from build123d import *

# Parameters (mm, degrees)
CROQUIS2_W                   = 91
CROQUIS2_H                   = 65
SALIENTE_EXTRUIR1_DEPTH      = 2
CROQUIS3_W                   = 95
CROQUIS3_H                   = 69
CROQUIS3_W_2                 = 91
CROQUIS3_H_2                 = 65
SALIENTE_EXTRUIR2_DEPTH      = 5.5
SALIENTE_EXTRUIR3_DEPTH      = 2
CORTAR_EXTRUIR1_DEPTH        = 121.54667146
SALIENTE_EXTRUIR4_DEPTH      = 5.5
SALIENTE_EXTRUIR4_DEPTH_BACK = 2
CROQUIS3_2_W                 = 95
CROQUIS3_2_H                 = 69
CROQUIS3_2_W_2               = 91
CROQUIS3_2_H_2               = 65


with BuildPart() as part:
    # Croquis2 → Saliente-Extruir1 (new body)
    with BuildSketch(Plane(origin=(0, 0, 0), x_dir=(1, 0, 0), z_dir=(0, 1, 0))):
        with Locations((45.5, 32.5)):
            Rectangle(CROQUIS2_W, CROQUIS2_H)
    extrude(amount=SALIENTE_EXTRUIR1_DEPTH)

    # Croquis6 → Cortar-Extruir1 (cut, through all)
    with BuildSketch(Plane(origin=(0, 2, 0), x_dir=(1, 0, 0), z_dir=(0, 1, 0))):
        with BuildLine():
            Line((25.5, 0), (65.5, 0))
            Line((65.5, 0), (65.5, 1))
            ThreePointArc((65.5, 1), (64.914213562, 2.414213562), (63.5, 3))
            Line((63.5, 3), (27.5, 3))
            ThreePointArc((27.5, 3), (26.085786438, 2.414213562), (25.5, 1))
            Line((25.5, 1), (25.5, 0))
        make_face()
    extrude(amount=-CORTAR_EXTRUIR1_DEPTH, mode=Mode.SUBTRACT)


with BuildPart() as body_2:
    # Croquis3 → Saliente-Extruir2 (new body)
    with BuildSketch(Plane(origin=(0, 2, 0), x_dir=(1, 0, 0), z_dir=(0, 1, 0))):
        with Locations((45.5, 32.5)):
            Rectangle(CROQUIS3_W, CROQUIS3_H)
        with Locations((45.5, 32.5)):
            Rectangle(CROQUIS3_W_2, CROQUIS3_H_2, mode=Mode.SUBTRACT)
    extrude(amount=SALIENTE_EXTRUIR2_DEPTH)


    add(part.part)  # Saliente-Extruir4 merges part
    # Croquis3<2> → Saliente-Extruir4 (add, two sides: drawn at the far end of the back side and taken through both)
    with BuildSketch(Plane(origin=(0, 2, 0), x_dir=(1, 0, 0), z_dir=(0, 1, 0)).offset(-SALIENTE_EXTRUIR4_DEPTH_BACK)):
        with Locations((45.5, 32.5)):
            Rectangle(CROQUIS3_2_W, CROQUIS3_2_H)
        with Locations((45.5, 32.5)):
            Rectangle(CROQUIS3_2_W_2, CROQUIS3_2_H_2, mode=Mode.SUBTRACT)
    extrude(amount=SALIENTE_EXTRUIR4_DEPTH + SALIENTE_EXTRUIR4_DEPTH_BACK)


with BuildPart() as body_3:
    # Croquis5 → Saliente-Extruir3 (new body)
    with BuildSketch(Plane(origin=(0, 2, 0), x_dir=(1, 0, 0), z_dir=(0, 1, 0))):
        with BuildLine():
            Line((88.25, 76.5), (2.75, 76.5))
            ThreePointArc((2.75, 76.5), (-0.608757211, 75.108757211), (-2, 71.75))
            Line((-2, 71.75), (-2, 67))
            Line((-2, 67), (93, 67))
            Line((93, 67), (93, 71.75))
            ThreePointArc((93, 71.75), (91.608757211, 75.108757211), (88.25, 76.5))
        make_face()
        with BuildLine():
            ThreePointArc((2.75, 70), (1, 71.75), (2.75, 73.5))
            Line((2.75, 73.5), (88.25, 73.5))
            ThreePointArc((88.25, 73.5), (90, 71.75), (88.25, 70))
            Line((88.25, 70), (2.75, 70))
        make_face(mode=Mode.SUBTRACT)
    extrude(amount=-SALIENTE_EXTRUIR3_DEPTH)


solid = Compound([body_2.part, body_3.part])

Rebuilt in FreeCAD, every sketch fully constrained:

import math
import FreeCAD as App
import Part
import Sketcher

V = App.Vector
Q = App.Units.Quantity


def add_polygon(sketch, points):
    """Adds a closed chain of lines whose ends are joined by coincident constraints."""
    first, n = sketch.GeometryCount, len(points)
    for a, b in zip(points, points[1:] + points[:1]):
        sketch.addGeometry(Part.LineSegment(App.Vector(*a, 0), App.Vector(*b, 0)), False)
    for i in range(n):
        sketch.addConstraint(Sketcher.Constraint("Coincident", first + i, 2, first + (i + 1) % n, 1))

doc = App.newDocument("Part")
body = doc.addObject("PartDesign::Body", "Body")

# Sketch on XZ plane
sketch1 = body.newObject("Sketcher::SketchObject", "Sketch")
sketch1.AttachmentSupport = (doc.getObject("XZ_Plane"), [""])
sketch1.MapMode = "FlatFace"
add_polygon(sketch1, [(0, -65), (0, 0), (91, 0), (91, -65)])  # lines 0-3
sketch1.addConstraint(Sketcher.Constraint("Vertical", 0))
sketch1.addConstraint(Sketcher.Constraint("Horizontal", 1))
sketch1.addConstraint(Sketcher.Constraint("Vertical", 2))
sketch1.addConstraint(Sketcher.Constraint("Horizontal", 3))
sketch1.addConstraint(Sketcher.Constraint("Coincident", 0, 2, -1, 1))
sketch1.addConstraint(Sketcher.Constraint("DistanceX", 1, 1, 1, 2, Q("91 mm")))
sketch1.addConstraint(Sketcher.Constraint("DistanceY", 0, 1, 0, 2, Q("65 mm")))
pad1 = body.newObject("PartDesign::Pad", "Pad")
pad1.Profile = sketch1
pad1.Length = 2
pad1.Reversed = True

# Sketch on XZ plane
sketch2 = body.newObject("Sketcher::SketchObject", "Sketch001")
sketch2.AttachmentSupport = (doc.getObject("XZ_Plane"), [""])
sketch2.MapMode = "FlatFace"
sketch2.AttachmentOffset = App.Placement(V(0, 0, -2), App.Rotation())
sketch2.addGeometry(Part.LineSegment(V(25.5, 0, 0), V(65.5, 0, 0)), False)
sketch2.addGeometry(Part.LineSegment(V(65.5, 0, 0), V(65.5, -1, 0)), False)
sketch2.addGeometry(Part.ArcOfCircle(Part.Circle(V(63.5, -1, 0), V(0, 0, 1), 2), math.radians(-90), math.radians(0)), False)
sketch2.addGeometry(Part.LineSegment(V(63.5, -3, 0), V(27.5, -3, 0)), False)
sketch2.addGeometry(Part.ArcOfCircle(Part.Circle(V(27.5, -1, 0), V(0, 0, 1), 2), math.radians(-180), math.radians(-90)), False)
sketch2.addGeometry(Part.LineSegment(V(25.5, -1, 0), V(25.5, 0, 0)), False)
sketch2.addConstraint(Sketcher.Constraint("Coincident", 0, 2, 1, 1))
sketch2.addConstraint(Sketcher.Constraint("Tangent", 1, 2, 2, 2))
sketch2.addConstraint(Sketcher.Constraint("Tangent", 2, 1, 3, 1))
sketch2.addConstraint(Sketcher.Constraint("Tangent", 3, 2, 4, 2))
sketch2.addConstraint(Sketcher.Constraint("Tangent", 4, 1, 5, 1))
sketch2.addConstraint(Sketcher.Constraint("Coincident", 5, 2, 0, 1))
sketch2.addConstraint(Sketcher.Constraint("Horizontal", 0))
sketch2.addConstraint(Sketcher.Constraint("Vertical", 1))
sketch2.addConstraint(Sketcher.Constraint("Horizontal", 3))
sketch2.addConstraint(Sketcher.Constraint("Vertical", 5))
sketch2.addConstraint(Sketcher.Constraint("Equal", 2, 4))
sketch2.addConstraint(Sketcher.Constraint("PointOnObject", 0, 2, -1))
sketch2.addConstraint(Sketcher.Constraint("Radius", 2, Q("2 mm")))
sketch2.addConstraint(Sketcher.Constraint("DistanceX", 0, 1, 0, 2, Q("40 mm")))
sketch2.addConstraint(Sketcher.Constraint("DistanceY", 1, 2, 1, 1, Q("1 mm")))
sketch2.addConstraint(Sketcher.Constraint("DistanceX", -1, 1, 2, 3, Q("63.5 mm")))
pocket1 = body.newObject("PartDesign::Pocket", "Pocket")
pocket1.Profile = sketch2
pocket1.Type = "ThroughAll"
pocket1.Reversed = True
body2 = doc.addObject("PartDesign::Body", "Body001")
body2.AllowCompound = True

# Sketch on XZ plane
sketch3 = body2.newObject("Sketcher::SketchObject", "Sketch002")
sketch3.AttachmentSupport = (doc.getObject("XZ_Plane001"), [""])
sketch3.MapMode = "FlatFace"
sketch3.AttachmentOffset = App.Placement(V(0, 0, -2), App.Rotation())
add_polygon(sketch3, [(-2, -67), (-2, 2), (93, 2), (93, -67)])  # lines 0-3
add_polygon(sketch3, [(91, 0), (0, 0), (0, -65), (91, -65)])  # lines 4-7
sketch3.addConstraint(Sketcher.Constraint("Vertical", 0))
sketch3.addConstraint(Sketcher.Constraint("Horizontal", 1))
sketch3.addConstraint(Sketcher.Constraint("Vertical", 2))
sketch3.addConstraint(Sketcher.Constraint("Horizontal", 3))
sketch3.addConstraint(Sketcher.Constraint("Horizontal", 4))
sketch3.addConstraint(Sketcher.Constraint("Vertical", 5))
sketch3.addConstraint(Sketcher.Constraint("Horizontal", 6))
sketch3.addConstraint(Sketcher.Constraint("Vertical", 7))
sketch3.addConstraint(Sketcher.Constraint("Coincident", 4, 2, -1, 1))
sketch3.addConstraint(Sketcher.Constraint("DistanceX", 1, 1, 1, 2, Q("95 mm")))
sketch3.addConstraint(Sketcher.Constraint("DistanceX", 4, 2, 4, 1, Q("91 mm")))
sketch3.addConstraint(Sketcher.Constraint("DistanceY", 0, 1, 0, 2, Q("69 mm")))
sketch3.addConstraint(Sketcher.Constraint("DistanceY", 5, 2, 5, 1, Q("65 mm")))
sketch3.addConstraint(Sketcher.Constraint("DistanceX", 0, 2, -1, 1, Q("2 mm")))
sketch3.addConstraint(Sketcher.Constraint("DistanceY", -1, 1, 0, 2, Q("2 mm")))
pad2 = body2.newObject("PartDesign::Pad", "Pad001")
pad2.Profile = sketch3
pad2.Length = 5.5
pad2.Reversed = True
doc.recompute()

boolean = body2.newObject("PartDesign::Boolean", "Boolean")
boolean.Type = "Fuse"
boolean.addObjects([body])

# Sketch on XZ plane
sketch4 = body2.newObject("Sketcher::SketchObject", "Sketch003")
sketch4.AttachmentSupport = (doc.getObject("XZ_Plane001"), [""])
sketch4.MapMode = "FlatFace"
sketch4.AttachmentOffset = App.Placement(V(0, 0, -2), App.Rotation())
add_polygon(sketch4, [(-2, -67), (-2, 2), (93, 2), (93, -67)])  # lines 0-3
add_polygon(sketch4, [(91, 0), (0, 0), (0, -65), (91, -65)])  # lines 4-7
sketch4.addConstraint(Sketcher.Constraint("Vertical", 0))
sketch4.addConstraint(Sketcher.Constraint("Horizontal", 1))
sketch4.addConstraint(Sketcher.Constraint("Vertical", 2))
sketch4.addConstraint(Sketcher.Constraint("Horizontal", 3))
sketch4.addConstraint(Sketcher.Constraint("Horizontal", 4))
sketch4.addConstraint(Sketcher.Constraint("Vertical", 5))
sketch4.addConstraint(Sketcher.Constraint("Horizontal", 6))
sketch4.addConstraint(Sketcher.Constraint("Vertical", 7))
sketch4.addConstraint(Sketcher.Constraint("Coincident", 4, 2, -1, 1))
sketch4.addConstraint(Sketcher.Constraint("DistanceX", 1, 1, 1, 2, Q("95 mm")))
sketch4.addConstraint(Sketcher.Constraint("DistanceX", 4, 2, 4, 1, Q("91 mm")))
sketch4.addConstraint(Sketcher.Constraint("DistanceY", 0, 1, 0, 2, Q("69 mm")))
sketch4.addConstraint(Sketcher.Constraint("DistanceY", 5, 2, 5, 1, Q("65 mm")))
sketch4.addConstraint(Sketcher.Constraint("DistanceX", 0, 2, -1, 1, Q("2 mm")))
sketch4.addConstraint(Sketcher.Constraint("DistanceY", -1, 1, 0, 2, Q("2 mm")))
pad3 = body2.newObject("PartDesign::Pad", "Pad002")
pad3.Profile = sketch4
pad3.Type = "TwoLengths"
pad3.Length = 5.5
pad3.Length2 = 2
pad3.Reversed = True
body3 = doc.addObject("PartDesign::Body", "Body002")

# Sketch on XZ plane
sketch5 = body3.newObject("Sketcher::SketchObject", "Sketch004")
sketch5.AttachmentSupport = (doc.getObject("XZ_Plane002"), [""])
sketch5.MapMode = "FlatFace"
sketch5.AttachmentOffset = App.Placement(V(0, 0, -2), App.Rotation())
sketch5.addGeometry(Part.LineSegment(V(88.2, -76.5, 0), V(2.8, -76.5, 0)), False)
sketch5.addGeometry(Part.ArcOfCircle(Part.Circle(V(2.7, -71.8, 0), V(0, 0, 1), 4.7), math.radians(180), math.radians(270)), False)
sketch5.addGeometry(Part.LineSegment(V(-2, -71.8, 0), V(-2, -67, 0)), False)
sketch5.addGeometry(Part.LineSegment(V(-2, -67, 0), V(93, -67, 0)), False)
sketch5.addGeometry(Part.LineSegment(V(93, -67, 0), V(93, -71.8, 0)), False)
sketch5.addGeometry(Part.ArcOfCircle(Part.Circle(V(88.3, -71.8, 0), V(0, 0, 1), 4.7), math.radians(-90), math.radians(0)), False)
sketch5.addGeometry(Part.LineSegment(V(88.2, -70, 0), V(2.8, -70, 0)), False)
sketch5.addGeometry(Part.ArcOfCircle(Part.Circle(V(2.8, -71.8, 0), V(0, 0, 1), 1.8), math.radians(90), math.radians(270)), False)
sketch5.addGeometry(Part.LineSegment(V(2.8, -73.5, 0), V(88.2, -73.5, 0)), False)
sketch5.addGeometry(Part.ArcOfCircle(Part.Circle(V(88.2, -71.8, 0), V(0, 0, 1), 1.8), math.radians(-90), math.radians(90)), False)
sketch5.addConstraint(Sketcher.Constraint("Tangent", 0, 2, 1, 2))
sketch5.addConstraint(Sketcher.Constraint("Tangent", 1, 1, 2, 1))
sketch5.addConstraint(Sketcher.Constraint("Coincident", 2, 2, 3, 1))
sketch5.addConstraint(Sketcher.Constraint("Coincident", 3, 2, 4, 1))
sketch5.addConstraint(Sketcher.Constraint("Tangent", 4, 2, 5, 2))
sketch5.addConstraint(Sketcher.Constraint("Tangent", 5, 1, 0, 1))
sketch5.addConstraint(Sketcher.Constraint("Tangent", 6, 2, 7, 1))
sketch5.addConstraint(Sketcher.Constraint("Tangent", 7, 2, 8, 1))
sketch5.addConstraint(Sketcher.Constraint("Tangent", 8, 2, 9, 1))
sketch5.addConstraint(Sketcher.Constraint("Tangent", 9, 2, 6, 1))
sketch5.addConstraint(Sketcher.Constraint("Horizontal", 0))
sketch5.addConstraint(Sketcher.Constraint("Vertical", 2))
sketch5.addConstraint(Sketcher.Constraint("Horizontal", 3))
sketch5.addConstraint(Sketcher.Constraint("Vertical", 4))
sketch5.addConstraint(Sketcher.Constraint("Horizontal", 6))
sketch5.addConstraint(Sketcher.Constraint("Horizontal", 8))
sketch5.addConstraint(Sketcher.Constraint("Coincident", 7, 3, 1, 3))
sketch5.addConstraint(Sketcher.Constraint("Coincident", 9, 3, 5, 3))
sketch5.addConstraint(Sketcher.Constraint("DistanceX", 3, 1, 3, 2, Q("95 mm")))
sketch5.addConstraint(Sketcher.Constraint("Radius", 1, Q("4.75 mm")))
sketch5.addConstraint(Sketcher.Constraint("Radius", 7, Q("1.75 mm")))
sketch5.addConstraint(Sketcher.Constraint("DistanceX", 1, 1, -1, 1, Q("2 mm")))
sketch5.addConstraint(Sketcher.Constraint("DistanceY", 2, 2, -1, 1, Q("67 mm")))
sketch5.addConstraint(Sketcher.Constraint("DistanceY", 6, 2, -1, 1, Q("70 mm")))
pad4 = body3.newObject("PartDesign::Pad", "Pad003")
pad4.Profile = sketch5
pad4.Length = 2

doc.recompute()
